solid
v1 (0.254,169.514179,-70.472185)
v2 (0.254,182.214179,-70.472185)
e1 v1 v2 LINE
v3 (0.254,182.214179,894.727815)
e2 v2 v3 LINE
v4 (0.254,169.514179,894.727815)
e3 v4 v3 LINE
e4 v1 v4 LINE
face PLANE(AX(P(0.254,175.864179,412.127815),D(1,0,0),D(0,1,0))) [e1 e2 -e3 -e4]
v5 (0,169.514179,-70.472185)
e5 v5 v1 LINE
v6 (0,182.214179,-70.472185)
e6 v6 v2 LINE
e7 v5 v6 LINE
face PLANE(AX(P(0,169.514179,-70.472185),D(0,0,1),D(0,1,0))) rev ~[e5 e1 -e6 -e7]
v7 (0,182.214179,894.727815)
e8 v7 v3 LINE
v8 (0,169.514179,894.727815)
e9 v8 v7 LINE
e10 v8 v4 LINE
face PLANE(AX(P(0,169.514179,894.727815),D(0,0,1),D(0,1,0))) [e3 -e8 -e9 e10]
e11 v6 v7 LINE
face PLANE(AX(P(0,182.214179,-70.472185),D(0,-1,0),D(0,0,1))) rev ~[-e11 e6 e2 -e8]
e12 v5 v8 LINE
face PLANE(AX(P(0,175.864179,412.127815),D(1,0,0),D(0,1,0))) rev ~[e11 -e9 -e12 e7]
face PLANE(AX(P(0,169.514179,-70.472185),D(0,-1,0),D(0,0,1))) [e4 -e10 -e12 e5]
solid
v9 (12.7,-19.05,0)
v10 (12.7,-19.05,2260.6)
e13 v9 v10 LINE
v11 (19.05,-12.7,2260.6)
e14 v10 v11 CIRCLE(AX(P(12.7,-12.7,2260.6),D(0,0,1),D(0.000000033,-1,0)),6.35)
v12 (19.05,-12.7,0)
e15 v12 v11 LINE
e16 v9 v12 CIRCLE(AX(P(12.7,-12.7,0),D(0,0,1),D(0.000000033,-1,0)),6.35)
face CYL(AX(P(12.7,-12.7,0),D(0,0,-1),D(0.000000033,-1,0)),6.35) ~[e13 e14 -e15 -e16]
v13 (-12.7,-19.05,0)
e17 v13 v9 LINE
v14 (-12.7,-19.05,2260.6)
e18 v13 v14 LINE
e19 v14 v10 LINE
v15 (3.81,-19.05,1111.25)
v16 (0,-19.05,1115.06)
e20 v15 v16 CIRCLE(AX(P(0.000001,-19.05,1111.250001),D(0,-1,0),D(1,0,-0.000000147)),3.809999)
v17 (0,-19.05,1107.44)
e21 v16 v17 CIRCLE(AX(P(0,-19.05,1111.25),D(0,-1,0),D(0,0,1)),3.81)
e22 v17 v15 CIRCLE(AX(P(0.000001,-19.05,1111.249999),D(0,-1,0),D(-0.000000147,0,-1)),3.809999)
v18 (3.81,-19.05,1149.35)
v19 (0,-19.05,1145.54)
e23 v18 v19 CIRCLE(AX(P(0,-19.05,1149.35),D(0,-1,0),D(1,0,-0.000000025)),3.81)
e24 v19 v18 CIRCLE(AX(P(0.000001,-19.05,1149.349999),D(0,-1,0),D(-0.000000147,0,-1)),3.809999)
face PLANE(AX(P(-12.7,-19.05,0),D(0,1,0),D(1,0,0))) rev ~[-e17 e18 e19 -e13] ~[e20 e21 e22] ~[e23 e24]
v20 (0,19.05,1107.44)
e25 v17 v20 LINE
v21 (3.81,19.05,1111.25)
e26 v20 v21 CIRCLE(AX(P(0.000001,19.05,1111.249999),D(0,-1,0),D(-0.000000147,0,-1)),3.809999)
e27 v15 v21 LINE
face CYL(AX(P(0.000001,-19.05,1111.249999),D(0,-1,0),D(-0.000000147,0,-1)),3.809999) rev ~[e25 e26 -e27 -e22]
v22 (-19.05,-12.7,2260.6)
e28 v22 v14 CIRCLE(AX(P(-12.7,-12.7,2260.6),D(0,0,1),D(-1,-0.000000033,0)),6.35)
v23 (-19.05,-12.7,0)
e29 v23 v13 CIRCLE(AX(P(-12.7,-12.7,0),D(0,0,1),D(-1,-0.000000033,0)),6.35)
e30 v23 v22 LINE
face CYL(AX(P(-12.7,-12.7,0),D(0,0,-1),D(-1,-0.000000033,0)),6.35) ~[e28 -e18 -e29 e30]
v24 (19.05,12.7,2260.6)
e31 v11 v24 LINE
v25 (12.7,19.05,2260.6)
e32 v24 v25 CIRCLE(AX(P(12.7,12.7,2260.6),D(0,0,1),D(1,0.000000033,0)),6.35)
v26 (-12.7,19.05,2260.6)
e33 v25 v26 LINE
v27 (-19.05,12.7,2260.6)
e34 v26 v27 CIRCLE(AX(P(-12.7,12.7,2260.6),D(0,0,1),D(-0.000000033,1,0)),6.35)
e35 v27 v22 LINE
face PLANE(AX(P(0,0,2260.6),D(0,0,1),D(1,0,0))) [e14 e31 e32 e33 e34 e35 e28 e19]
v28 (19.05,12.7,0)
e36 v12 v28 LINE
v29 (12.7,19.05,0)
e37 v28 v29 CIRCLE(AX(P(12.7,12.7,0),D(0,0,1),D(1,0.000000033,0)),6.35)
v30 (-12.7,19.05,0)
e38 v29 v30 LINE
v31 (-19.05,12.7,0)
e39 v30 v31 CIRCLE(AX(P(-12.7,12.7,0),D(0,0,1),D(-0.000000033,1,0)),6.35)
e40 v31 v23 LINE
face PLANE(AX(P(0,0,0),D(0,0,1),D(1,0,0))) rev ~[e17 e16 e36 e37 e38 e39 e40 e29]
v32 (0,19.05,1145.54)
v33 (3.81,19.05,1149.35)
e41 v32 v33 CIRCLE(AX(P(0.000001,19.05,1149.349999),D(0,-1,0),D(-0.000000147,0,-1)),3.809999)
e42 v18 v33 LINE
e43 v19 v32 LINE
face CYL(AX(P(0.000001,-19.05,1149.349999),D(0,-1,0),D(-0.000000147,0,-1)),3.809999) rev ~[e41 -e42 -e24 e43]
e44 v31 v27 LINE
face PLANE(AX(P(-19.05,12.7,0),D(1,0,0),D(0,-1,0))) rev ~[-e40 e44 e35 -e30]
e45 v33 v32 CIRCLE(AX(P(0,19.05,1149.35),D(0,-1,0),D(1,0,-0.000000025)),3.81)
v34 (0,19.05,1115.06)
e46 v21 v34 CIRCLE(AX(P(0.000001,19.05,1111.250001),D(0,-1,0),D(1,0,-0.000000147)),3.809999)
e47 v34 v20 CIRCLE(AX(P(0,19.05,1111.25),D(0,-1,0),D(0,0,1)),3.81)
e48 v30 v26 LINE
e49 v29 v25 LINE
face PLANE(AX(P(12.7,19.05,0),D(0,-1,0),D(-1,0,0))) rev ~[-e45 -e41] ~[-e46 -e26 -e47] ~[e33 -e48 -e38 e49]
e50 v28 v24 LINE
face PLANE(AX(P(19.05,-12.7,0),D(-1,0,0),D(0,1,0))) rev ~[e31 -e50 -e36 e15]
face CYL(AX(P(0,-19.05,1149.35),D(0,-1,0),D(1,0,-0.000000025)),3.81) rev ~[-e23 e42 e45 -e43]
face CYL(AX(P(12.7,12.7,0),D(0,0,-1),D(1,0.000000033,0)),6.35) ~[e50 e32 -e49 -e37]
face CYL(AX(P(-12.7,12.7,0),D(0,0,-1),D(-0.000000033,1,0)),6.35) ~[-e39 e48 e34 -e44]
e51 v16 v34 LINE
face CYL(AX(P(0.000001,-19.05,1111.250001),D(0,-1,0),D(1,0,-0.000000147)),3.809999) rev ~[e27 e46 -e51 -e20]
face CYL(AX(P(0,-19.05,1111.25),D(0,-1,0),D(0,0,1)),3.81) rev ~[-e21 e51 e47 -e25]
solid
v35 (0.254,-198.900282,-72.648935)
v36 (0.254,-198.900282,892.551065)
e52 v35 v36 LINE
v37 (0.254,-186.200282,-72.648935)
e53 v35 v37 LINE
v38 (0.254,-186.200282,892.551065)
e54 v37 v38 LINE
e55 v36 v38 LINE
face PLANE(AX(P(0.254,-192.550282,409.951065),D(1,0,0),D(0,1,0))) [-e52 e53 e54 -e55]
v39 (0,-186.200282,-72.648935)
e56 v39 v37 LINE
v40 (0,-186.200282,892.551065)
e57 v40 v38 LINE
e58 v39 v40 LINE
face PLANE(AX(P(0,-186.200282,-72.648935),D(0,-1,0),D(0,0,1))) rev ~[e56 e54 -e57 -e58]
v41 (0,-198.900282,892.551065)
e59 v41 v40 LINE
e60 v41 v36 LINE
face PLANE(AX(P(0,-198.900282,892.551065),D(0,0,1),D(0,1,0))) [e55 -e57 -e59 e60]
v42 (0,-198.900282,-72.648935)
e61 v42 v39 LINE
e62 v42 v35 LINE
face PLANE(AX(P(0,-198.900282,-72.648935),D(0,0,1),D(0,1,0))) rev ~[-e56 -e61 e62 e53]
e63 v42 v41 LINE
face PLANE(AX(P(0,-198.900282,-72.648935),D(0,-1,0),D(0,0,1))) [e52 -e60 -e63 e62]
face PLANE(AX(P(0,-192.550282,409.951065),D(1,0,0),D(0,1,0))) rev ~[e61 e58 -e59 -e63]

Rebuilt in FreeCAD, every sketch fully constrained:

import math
import FreeCAD as App
import Part
import Sketcher
from FreeCAD import Vector
Q = App.Units.Quantity

doc = App.newDocument("Part")
body = doc.addObject("PartDesign::Body", "Body")

# Sketch on XY plane
sketch1 = body.newObject("Sketcher::SketchObject", "Sketch")
sketch1.AttachmentSupport = (doc.getObject("XY_Plane"), [""])
sketch1.MapMode = "FlatFace"
sketch1.addGeometry([
    Part.ArcOfCircle(Part.Circle(Vector(12.7, 12.7, 0), Vector(0, 0, 1), 6.35), math.radians(0.000002), math.radians(89.999998)),  # 0
    Part.LineSegment(Vector(12.7, 19.05, 0), Vector(-12.7, 19.05, 0)),  # 1
    Part.ArcOfCircle(Part.Circle(Vector(-12.7, 12.7, 0), Vector(0, 0, 1), 6.35), math.radians(90.000002), math.radians(179.999998)),  # 2
    Part.LineSegment(Vector(-19.05, 12.7, 0), Vector(-19.05, -12.7, 0)),  # 3
    Part.ArcOfCircle(Part.Circle(Vector(-12.7, -12.7, 0), Vector(0, 0, 1), 6.35), math.radians(-179.999998), math.radians(-90.000002)),  # 4
    Part.LineSegment(Vector(-12.7, -19.05, 0), Vector(12.7, -19.05, 0)),  # 5
    Part.ArcOfCircle(Part.Circle(Vector(12.7, -12.7, 0), Vector(0, 0, 1), 6.35), math.radians(-89.999998), math.radians(-0.000002)),  # 6
    Part.LineSegment(Vector(19.05, -12.7, 0), Vector(19.05, 12.7, 0)),  # 7
], False)
sketch1.addConstraint([
    Sketcher.Constraint("Tangent", 0, 2, 1, 1),
    Sketcher.Constraint("Tangent", 1, 2, 2, 1),
    Sketcher.Constraint("Tangent", 2, 2, 3, 1),
    Sketcher.Constraint("Tangent", 3, 2, 4, 1),
    Sketcher.Constraint("Tangent", 4, 2, 5, 1),
    Sketcher.Constraint("Tangent", 5, 2, 6, 1),
    Sketcher.Constraint("Tangent", 6, 2, 7, 1),
    Sketcher.Constraint("Tangent", 7, 2, 0, 1),
    Sketcher.Constraint("Horizontal", 1),
    Sketcher.Constraint("Vertical", 3),
    Sketcher.Constraint("Horizontal", 5),
    Sketcher.Constraint("Vertical", 7),
    Sketcher.Constraint("Equal", 0, 2),
    Sketcher.Constraint("Equal", 2, 4),
    Sketcher.Constraint("Equal", 4, 6),
    Sketcher.Constraint("Symmetric", 0, 3, 4, 3, -1, 1),
    Sketcher.Constraint("Equal", 5, 3),
    Sketcher.Constraint("DistanceX", 1, 2, 1, 1, Q("1 in")),
    Sketcher.Constraint("Radius", 0, Q("0.25 in")),
])
pad1 = body.newObject("PartDesign::Pad", "Pad")
pad1.Profile = sketch1
pad1.Length = Q("89 in")

# Sketch on XZ plane
sketch2 = body.newObject("Sketcher::SketchObject", "Sketch001")
sketch2.AttachmentSupport = (doc.getObject("XZ_Plane"), [""])
sketch2.MapMode = "FlatFace"
sketch2.AttachmentOffset = App.Placement(Vector(0, 0, 0.75 * 25.4), App.Rotation())
sketch2.addGeometry([
    Part.ArcOfCircle(Part.Circle(Vector(0, 1111.25, 0), Vector(0, 0, 1), 3.81), math.radians(90), math.radians(270)),  # 0
    Part.ArcOfCircle(Part.Circle(Vector(0.000001, 1111.249999, 0), Vector(0, 0, 1), 3.809999), math.radians(-90.000008), math.radians(0.000008)),  # 1
    Part.ArcOfCircle(Part.Circle(Vector(0.000001, 1111.250001, 0), Vector(0, 0, 1), 3.809999), math.radians(-0.000008), math.radians(90.000008)),  # 2
    Part.ArcOfCircle(Part.Circle(Vector(0, 1149.35, 0), Vector(0, 0, 1), 3.81), math.radians(-0.000001), math.radians(270.000001)),  # 3
    Part.ArcOfCircle(Part.Circle(Vector(0.000001, 1149.349999, 0), Vector(0, 0, 1), 3.809999), math.radians(-90.000008), math.radians(0.000008)),  # 4
], False)
sketch2.addConstraint([
    Sketcher.Constraint("Tangent", 0, 2, 1, 1),
    Sketcher.Constraint("Tangent", 1, 2, 2, 1),
    Sketcher.Constraint("Tangent", 2, 2, 0, 1),
    Sketcher.Constraint("Tangent", 3, 1, 4, 2),
    Sketcher.Constraint("Coincident", 4, 1, 3, 2),
    Sketcher.Constraint("Equal", 2, 3),
    Sketcher.Constraint("PointOnObject", 0, 3, -2),
    Sketcher.Constraint("PointOnObject", 3, 3, -2),
    Sketcher.Constraint("PointOnObject", 0, 2, -2),
    Sketcher.Constraint("PointOnObject", 2, 2, -2),
    Sketcher.Constraint("PointOnObject", 4, 1, -2),
    Sketcher.Constraint("Horizontal", 2, 3, 1, 2),
    Sketcher.Constraint("Horizontal", 4, 3, 3, 1),
    Sketcher.Constraint("Radius", 0, Q("0.15 in")),
    Sketcher.Constraint("DistanceY", -1, 1, 0, 2, Q("43.6 in")),
    Sketcher.Constraint("DistanceY", -1, 1, 4, 1, Q("45.1 in")),
])
pocket1 = body.newObject("PartDesign::Pocket", "Pocket")
pocket1.Profile = sketch2
pocket1.Length = Q("1.5 in")
body2 = doc.addObject("PartDesign::Body", "Body001")

# Sketch on YZ plane
sketch3 = body2.newObject("Sketcher::SketchObject", "Sketch002")
sketch3.AttachmentSupport = (doc.getObject("YZ_Plane001"), [""])
sketch3.MapMode = "FlatFace"
sketch3.addGeometry([
    Part.LineSegment(Vector(-198.900282, 892.551065, 0), Vector(-198.900282, -72.648935, 0)),
    Part.LineSegment(Vector(-198.900282, -72.648935, 0), Vector(-186.200282, -72.648935, 0)),
    Part.LineSegment(Vector(-186.200282, -72.648935, 0), Vector(-186.200282, 892.551065, 0)),
    Part.LineSegment(Vector(-186.200282, 892.551065, 0), Vector(-198.900282, 892.551065, 0)),
], False)
sketch3.addConstraint([
    Sketcher.Constraint("Coincident", 0, 2, 1, 1),
    Sketcher.Constraint("Coincident", 1, 2, 2, 1),
    Sketcher.Constraint("Coincident", 2, 2, 3, 1),
    Sketcher.Constraint("Coincident", 3, 2, 0, 1),
    Sketcher.Constraint("Vertical", 0),
    Sketcher.Constraint("Horizontal", 1),
    Sketcher.Constraint("Vertical", 2),
    Sketcher.Constraint("Horizontal", 3),
    Sketcher.Constraint("DistanceY", 0, 2, 0, 1, Q("38 in")),
    Sketcher.Constraint("DistanceX", 1, 1, 1, 2, Q("0.5 in")),
    Sketcher.Constraint("DistanceX", 0, 2, -1, 1, Q("198.900282 mm")),
    Sketcher.Constraint("DistanceY", 0, 2, -1, 1, Q("72.648935 mm")),
])
pad2 = body2.newObject("PartDesign::Pad", "Pad001")
pad2.Profile = sketch3
pad2.Length = Q("0.01 in")
body3 = doc.addObject("PartDesign::Body", "Body002")

# Sketch on YZ plane
sketch4 = body3.newObject("Sketcher::SketchObject", "Sketch003")
sketch4.AttachmentSupport = (doc.getObject("YZ_Plane002"), [""])
sketch4.MapMode = "FlatFace"
sketch4.addGeometry([
    Part.LineSegment(Vector(169.514179, 894.727815, 0), Vector(169.514179, -70.472185, 0)),
    Part.LineSegment(Vector(169.514179, -70.472185, 0), Vector(182.214179, -70.472185, 0)),
    Part.LineSegment(Vector(182.214179, -70.472185, 0), Vector(182.214179, 894.727815, 0)),
    Part.LineSegment(Vector(182.214179, 894.727815, 0), Vector(169.514179, 894.727815, 0)),
], False)
sketch4.addConstraint([
    Sketcher.Constraint("Coincident", 0, 2, 1, 1),
    Sketcher.Constraint("Coincident", 1, 2, 2, 1),
    Sketcher.Constraint("Coincident", 2, 2, 3, 1),
    Sketcher.Constraint("Coincident", 3, 2, 0, 1),
    Sketcher.Constraint("Vertical", 0),
    Sketcher.Constraint("Horizontal", 1),
    Sketcher.Constraint("Vertical", 2),
    Sketcher.Constraint("Horizontal", 3),
    Sketcher.Constraint("DistanceY", 0, 2, 0, 1, Q("38 in")),
    Sketcher.Constraint("DistanceX", 1, 1, 1, 2, Q("0.5 in")),
    Sketcher.Constraint("DistanceX", -1, 1, 0, 2, Q("169.514179 mm")),
    Sketcher.Constraint("DistanceY", 0, 2, -1, 1, Q("70.472185 mm")),
])
pad3 = body3.newObject("PartDesign::Pad", "Pad002")
pad3.Profile = sketch4
pad3.Length = Q("0.01 in")

doc.recompute()
